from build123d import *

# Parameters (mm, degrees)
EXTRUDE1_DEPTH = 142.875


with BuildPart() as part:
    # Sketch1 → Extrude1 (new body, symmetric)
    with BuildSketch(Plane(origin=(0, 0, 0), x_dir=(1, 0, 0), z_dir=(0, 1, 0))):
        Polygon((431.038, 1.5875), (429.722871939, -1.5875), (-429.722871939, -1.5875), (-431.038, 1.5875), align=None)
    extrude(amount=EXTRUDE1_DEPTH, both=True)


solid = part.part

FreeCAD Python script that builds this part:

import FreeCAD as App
import Part
import Sketcher
from FreeCAD import Vector
Q = App.Units.Quantity

doc = App.newDocument("Part")
params = doc.addObject("Spreadsheet::Sheet", "Params")
for row, (alias, value) in enumerate([
    ("sketch1_width", "33.94 in"),
    ("pad1_length", "11.25 in"),
], start=1):
    params.set(f"A{row}", alias)
    params.set(f"B{row}", "=" + value)
    params.setAlias(f"B{row}", alias)

body = doc.addObject("PartDesign::Body", "Body")

sketch1 = body.newObject("Sketcher::SketchObject", "Sketch")
sketch1.AttachmentSupport = (doc.getObject("XZ_Plane"), [""])
sketch1.MapMode = "FlatFace"
sketch1.addGeometry(Part.LineSegment(Vector(429.7, 1.6, 0), Vector(431, -1.6, 0)), False)
sketch1.addGeometry(Part.LineSegment(Vector(431, -1.6, 0), Vector(-431, -1.6, 0)), False)
sketch1.addGeometry(Part.LineSegment(Vector(-431, -1.6, 0), Vector(-429.7, 1.6, 0)), False)
sketch1.addGeometry(Part.LineSegment(Vector(-429.7, 1.6, 0), Vector(429.7, 1.6, 0)), False)
sketch1.addConstraint(Sketcher.Constraint("Coincident", 0, 2, 1, 1))
sketch1.addConstraint(Sketcher.Constraint("Coincident", 1, 2, 2, 1))
sketch1.addConstraint(Sketcher.Constraint("Coincident", 2, 2, 3, 1))
sketch1.addConstraint(Sketcher.Constraint("Coincident", 3, 2, 0, 1))
sketch1.addConstraint(Sketcher.Constraint("Horizontal", 1))
sketch1.addConstraint(Sketcher.Constraint("Horizontal", 3))
sketch1.addConstraint(Sketcher.Constraint("Equal", 0, 2))
sketch1.addConstraint(Sketcher.Constraint("DistanceX", 1, 2, 1, 1, Q("33.94 in")))
sketch1.addConstraint(Sketcher.Constraint("Angle", 0, Q("-67.5 deg")))
sketch1.addConstraint(Sketcher.Constraint("DistanceX", -1, 1, 0, 2, Q("16.97 in")))
sketch1.addConstraint(Sketcher.Constraint("DistanceY", 0, 2, -1, 1, Q("0.0625 in")))
sketch1.addConstraint(Sketcher.Constraint("DistanceY", -1, 1, 2, 2, Q("0.0625 in")))
sketch1.setExpression("Constraints[7]", "Params.sketch1_width")
pad1 = body.newObject("PartDesign::Pad", "Pad")
pad1.Profile = sketch1
pad1.setExpression("Length", "Params.pad1_length")
pad1.Midplane = True

doc.recompute()
